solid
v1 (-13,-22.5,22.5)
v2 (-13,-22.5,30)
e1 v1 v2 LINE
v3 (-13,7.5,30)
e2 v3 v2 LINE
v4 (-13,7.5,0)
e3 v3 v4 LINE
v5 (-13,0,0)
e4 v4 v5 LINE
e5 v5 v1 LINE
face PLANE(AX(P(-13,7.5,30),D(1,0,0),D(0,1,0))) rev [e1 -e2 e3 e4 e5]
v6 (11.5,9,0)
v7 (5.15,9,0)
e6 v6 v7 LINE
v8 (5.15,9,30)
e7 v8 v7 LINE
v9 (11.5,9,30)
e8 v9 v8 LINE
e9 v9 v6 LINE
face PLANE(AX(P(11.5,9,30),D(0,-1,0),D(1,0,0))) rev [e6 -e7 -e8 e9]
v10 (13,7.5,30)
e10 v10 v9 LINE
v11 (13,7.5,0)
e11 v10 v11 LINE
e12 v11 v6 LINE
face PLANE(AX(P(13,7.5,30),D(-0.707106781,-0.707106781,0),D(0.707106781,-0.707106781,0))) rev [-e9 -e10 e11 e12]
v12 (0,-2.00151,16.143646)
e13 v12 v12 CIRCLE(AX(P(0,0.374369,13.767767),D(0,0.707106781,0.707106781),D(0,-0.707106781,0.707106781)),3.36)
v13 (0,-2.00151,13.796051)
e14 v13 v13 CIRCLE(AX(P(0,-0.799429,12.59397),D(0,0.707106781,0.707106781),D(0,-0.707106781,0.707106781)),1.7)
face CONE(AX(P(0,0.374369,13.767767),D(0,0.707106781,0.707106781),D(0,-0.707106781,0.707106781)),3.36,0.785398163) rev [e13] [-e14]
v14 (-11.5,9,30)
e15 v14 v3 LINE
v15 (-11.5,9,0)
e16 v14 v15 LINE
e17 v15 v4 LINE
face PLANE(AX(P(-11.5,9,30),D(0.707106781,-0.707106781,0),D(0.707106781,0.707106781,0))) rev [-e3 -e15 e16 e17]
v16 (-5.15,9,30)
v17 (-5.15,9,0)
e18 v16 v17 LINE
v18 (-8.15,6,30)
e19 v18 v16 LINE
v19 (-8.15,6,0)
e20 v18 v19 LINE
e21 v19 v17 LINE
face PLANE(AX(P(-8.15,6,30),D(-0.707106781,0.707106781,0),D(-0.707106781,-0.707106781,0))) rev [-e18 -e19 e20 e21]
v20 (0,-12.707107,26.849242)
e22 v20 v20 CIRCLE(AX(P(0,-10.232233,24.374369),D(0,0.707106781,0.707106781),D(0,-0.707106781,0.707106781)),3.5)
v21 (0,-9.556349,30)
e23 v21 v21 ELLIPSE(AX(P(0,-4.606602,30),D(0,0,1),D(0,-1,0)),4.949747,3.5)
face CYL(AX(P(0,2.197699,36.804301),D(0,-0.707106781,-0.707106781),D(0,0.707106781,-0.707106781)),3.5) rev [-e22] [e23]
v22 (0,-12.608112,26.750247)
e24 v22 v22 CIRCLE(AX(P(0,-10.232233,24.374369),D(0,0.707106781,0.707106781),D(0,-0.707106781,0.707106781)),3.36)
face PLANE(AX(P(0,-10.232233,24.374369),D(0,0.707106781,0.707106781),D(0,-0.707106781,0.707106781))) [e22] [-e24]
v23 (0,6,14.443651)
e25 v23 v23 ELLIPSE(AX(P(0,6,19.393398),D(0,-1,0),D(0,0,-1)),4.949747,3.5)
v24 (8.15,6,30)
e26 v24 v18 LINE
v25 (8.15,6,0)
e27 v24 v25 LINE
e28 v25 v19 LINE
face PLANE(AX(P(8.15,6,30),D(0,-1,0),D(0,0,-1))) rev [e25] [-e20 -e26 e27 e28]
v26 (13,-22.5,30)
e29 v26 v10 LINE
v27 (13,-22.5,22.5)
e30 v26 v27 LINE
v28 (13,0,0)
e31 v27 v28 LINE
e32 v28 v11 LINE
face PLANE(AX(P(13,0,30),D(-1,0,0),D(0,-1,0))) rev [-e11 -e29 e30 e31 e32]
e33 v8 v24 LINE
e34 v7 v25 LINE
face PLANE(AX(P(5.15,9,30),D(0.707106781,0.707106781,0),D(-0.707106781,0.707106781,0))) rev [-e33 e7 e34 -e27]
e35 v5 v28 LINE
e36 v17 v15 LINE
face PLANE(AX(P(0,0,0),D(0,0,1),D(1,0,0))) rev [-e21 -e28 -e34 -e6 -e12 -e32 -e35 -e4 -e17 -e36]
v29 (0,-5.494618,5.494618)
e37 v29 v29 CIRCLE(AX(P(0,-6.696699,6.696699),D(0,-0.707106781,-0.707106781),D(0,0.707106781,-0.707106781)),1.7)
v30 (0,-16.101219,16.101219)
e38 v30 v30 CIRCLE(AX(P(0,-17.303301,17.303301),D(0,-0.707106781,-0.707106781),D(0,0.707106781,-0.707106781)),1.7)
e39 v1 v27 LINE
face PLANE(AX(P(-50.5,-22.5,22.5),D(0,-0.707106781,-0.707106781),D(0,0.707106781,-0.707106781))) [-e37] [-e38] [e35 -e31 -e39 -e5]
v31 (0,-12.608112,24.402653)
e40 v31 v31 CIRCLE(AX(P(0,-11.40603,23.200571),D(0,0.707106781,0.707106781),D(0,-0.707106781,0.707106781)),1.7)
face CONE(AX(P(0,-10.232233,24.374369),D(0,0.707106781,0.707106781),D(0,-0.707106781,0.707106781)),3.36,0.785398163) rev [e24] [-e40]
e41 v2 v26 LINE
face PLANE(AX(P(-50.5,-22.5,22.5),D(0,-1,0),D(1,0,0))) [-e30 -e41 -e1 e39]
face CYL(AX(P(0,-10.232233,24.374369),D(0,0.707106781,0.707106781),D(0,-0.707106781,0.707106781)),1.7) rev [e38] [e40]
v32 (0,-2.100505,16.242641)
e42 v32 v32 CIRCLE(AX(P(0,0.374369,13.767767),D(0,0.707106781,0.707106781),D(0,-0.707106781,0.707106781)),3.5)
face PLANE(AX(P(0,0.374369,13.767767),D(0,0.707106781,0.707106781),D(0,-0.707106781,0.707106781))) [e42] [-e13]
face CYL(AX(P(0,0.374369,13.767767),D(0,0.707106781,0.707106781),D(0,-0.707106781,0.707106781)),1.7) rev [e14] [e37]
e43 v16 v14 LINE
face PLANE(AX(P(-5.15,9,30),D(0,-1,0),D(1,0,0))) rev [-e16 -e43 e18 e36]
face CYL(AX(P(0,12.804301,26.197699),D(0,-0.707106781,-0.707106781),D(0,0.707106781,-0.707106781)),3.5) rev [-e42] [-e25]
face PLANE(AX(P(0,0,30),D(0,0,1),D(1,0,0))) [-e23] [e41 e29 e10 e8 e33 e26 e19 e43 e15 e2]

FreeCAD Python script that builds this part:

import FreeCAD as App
import Part
import Sketcher

V = App.Vector
Q = App.Units.Quantity


def add_polygon(sketch, points):
    """Adds a closed chain of lines whose ends are joined by coincident constraints."""
    first, n = sketch.GeometryCount, len(points)
    for a, b in zip(points, points[1:] + points[:1]):
        sketch.addGeometry(Part.LineSegment(App.Vector(*a, 0), App.Vector(*b, 0)), False)
    for i in range(n):
        sketch.addConstraint(Sketcher.Constraint("Coincident", first + i, 2, first + (i + 1) % n, 1))

doc = App.newDocument("Part")
body = doc.addObject("PartDesign::Body", "Body")

# Sketch on XY plane
sketch1 = body.newObject("Sketcher::SketchObject", "Sketch")
sketch1.AttachmentSupport = (doc.getObject("XY_Plane"), [""])
sketch1.MapMode = "FlatFace"
add_polygon(sketch1, [(-13, 0), (13, 0), (13, 7.5), (11.5, 9), (5.15, 9), (8.15, 6), (-8.15, 6), (-5.15, 9), (-11.5, 9), (-13, 7.5)])  # lines 0-9
sketch1.addConstraint([
    Sketcher.Constraint("Horizontal", 0),
    Sketcher.Constraint("Vertical", 1),
    Sketcher.Constraint("Horizontal", 3),
    Sketcher.Constraint("Horizontal", 5),
    Sketcher.Constraint("Horizontal", 7),
    Sketcher.Constraint("Vertical", 9),
    Sketcher.Constraint("Symmetric", 0, 2, 9, 2, -1, 1),
    Sketcher.Constraint("Symmetric", 3, 2, 6, 2, -2),
    Sketcher.Constraint("Parallel", 2, 4),
    Sketcher.Constraint("Perpendicular", 4, 6),
    Sketcher.Constraint("Parallel", 6, 8),
    Sketcher.Constraint("Horizontal", 1, 2, 8, 2),
    Sketcher.Constraint("Equal", 3, 7),
    Sketcher.Constraint("DistanceX", 0, 1, 0, 2, 26.0),
    Sketcher.Constraint("DistanceX", 5, 2, 5, 1, 16.3),
    Sketcher.Constraint("DistanceY", 1, 1, 1, 2, 7.5),
    Sketcher.Constraint("DistanceY", -1, 1, 2, 2, 9.0),
    Sketcher.Constraint("DistanceY", -1, 1, 4, 2, 6.0),
])
pad1 = body.newObject("PartDesign::Pad", "Pad")
pad1.Profile = sketch1
pad1.Length = 30

# Sketch on YZ plane
sketch2 = body.newObject("Sketcher::SketchObject", "Sketch001")
sketch2.AttachmentSupport = (doc.getObject("YZ_Plane"), [""])
sketch2.MapMode = "FlatFace"
sketch2.AttachmentOffset = App.Placement(V(0, 0, 13), App.Rotation())
add_polygon(sketch2, [(0, 30), (-22.5, 30), (-22.5, 22.5), (0, 0)])  # lines 0-3
sketch2.addConstraint([
    Sketcher.Constraint("Horizontal", 0),
    Sketcher.Constraint("Vertical", 1),
    Sketcher.Constraint("Vertical", 3),
    Sketcher.Constraint("Coincident", 2, 2, -1, 1),
    Sketcher.Constraint("DistanceY", 3, 1, 3, 2, 30.0),
    Sketcher.Constraint("Angle", 2, Q("-45 deg")),
    Sketcher.Constraint("DistanceX", 0, 2, 0, 1, 22.5),
])
pad2 = body.newObject("PartDesign::Pad", "Pad001")
pad2.Profile = sketch2
pad2.Length = 26
pad2.Reversed = True

# Sketch on an angled plane
sketch3 = body.newObject("Sketcher::SketchObject", "Sketch002")
sketch3.Placement = App.Placement(V(0, 7.071068, 7.071068), App.Rotation(V(1, 0, 0), V(0, 0.707106781, -0.707106781), V(0, 0.707106781, 0.707106781), "ZXY"))
sketch3.addGeometry(Part.Circle(V(0, -9.470563, 0), V(0, 0, 1), 3.5), False)
sketch3.addConstraint([
    Sketcher.Constraint("PointOnObject", 0, 3, -2),
    Sketcher.Constraint("Diameter", 0, 7.0),
    Sketcher.Constraint("DistanceY", 0, 3, -1, 1, 9.470563),
])
pocket1 = body.newObject("PartDesign::Pocket", "Pocket")
pocket1.Profile = sketch3
pocket1.Type = "UpToFirst"
pocket1.Reversed = True

# Sketch on an angled plane
sketch4 = body.newObject("Sketcher::SketchObject", "Sketch003")
sketch4.Placement = App.Placement(V(0, 7.071068, 7.071068), App.Rotation(V(1, 0, 0), V(0, 0.707106781, -0.707106781), V(0, 0.707106781, 0.707106781), "ZXY"))
sketch4.addGeometry(Part.Circle(V(0, -24.470563, 0), V(0, 0, 1), 3.5), False)
sketch4.addConstraint([
    Sketcher.Constraint("PointOnObject", 0, 3, -2),
    Sketcher.Constraint("Diameter", 0, 7.0),
    Sketcher.Constraint("DistanceY", 0, 3, -1, 1, 24.470563),
])
pocket2 = body.newObject("PartDesign::Pocket", "Pocket001")
pocket2.Profile = sketch4
pocket2.Type = "UpToFirst"
pocket2.Reversed = True

# Sketch on an angled plane
sketch5 = body.newObject("Sketcher::SketchObject", "Sketch004")
sketch5.Placement = App.Placement(V(0, 7.071068, 7.071068), App.Rotation(V(1, 0, 0), V(0, 0.707106781, -0.707106781), V(0, 0.707106781, 0.707106781), "ZXY"))
sketch5.addGeometry([
    Part.Circle(V(0, -9.470563, 0), V(0, 0, 1), 1.7),
    Part.Circle(V(0, -24.470563, 0), V(0, 0, 1), 1.7),
], False)
sketch5.addConstraint([
    Sketcher.Constraint("Equal", 0, 1),
    Sketcher.Constraint("PointOnObject", 0, 3, -2),
    Sketcher.Constraint("PointOnObject", 1, 3, -2),
    Sketcher.Constraint("Diameter", 0, 3.4),
    Sketcher.Constraint("DistanceY", 1, 3, 0, 3, 15.0),
    Sketcher.Constraint("DistanceY", 0, 3, -1, 1, 9.470563),
])
doc.recompute()
hole = body.newObject("PartDesign::Hole", "Hole")
hole.Profile = sketch5
hole.ThreadType = "None"
hole.Diameter = 3.4
hole.DepthType = "ThroughAll"
hole.HoleCutType = "Countersink"
hole.HoleCutDiameter = 6.72
hole.HoleCutCountersinkAngle = 90

doc.recompute()
